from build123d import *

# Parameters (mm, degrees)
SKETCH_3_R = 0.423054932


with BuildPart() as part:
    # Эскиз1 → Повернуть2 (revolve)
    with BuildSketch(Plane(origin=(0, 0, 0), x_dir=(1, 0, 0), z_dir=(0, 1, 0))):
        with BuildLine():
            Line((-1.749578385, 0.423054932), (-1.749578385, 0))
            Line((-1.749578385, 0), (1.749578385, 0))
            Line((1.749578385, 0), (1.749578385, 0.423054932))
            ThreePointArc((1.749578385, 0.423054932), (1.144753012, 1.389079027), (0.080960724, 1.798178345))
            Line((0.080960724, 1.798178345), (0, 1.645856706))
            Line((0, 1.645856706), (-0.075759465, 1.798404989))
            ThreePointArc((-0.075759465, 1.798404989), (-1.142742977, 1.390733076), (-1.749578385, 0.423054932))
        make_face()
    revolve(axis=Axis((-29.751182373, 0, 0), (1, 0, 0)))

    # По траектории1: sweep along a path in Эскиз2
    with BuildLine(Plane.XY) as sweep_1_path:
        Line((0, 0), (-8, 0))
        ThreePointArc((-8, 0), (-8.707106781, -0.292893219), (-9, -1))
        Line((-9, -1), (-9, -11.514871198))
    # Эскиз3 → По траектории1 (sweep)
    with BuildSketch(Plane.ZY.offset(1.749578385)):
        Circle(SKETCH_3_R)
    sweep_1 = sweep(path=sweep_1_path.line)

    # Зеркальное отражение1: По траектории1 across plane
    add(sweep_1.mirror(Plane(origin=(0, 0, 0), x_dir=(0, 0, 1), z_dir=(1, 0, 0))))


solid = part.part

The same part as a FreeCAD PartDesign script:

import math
import FreeCAD as App
import Part
import Sketcher
Q = App.Units.Quantity

doc = App.newDocument("Part")
params = doc.addObject("Spreadsheet::Sheet", "Params")
for row, (alias, value) in enumerate([
    ("sketch1_radius", "1.8 mm"),
    ("revolution_angle", "360 deg"),
    ("sketch3_radius", "1 mm"),
    ("sketch3_width", "8 mm"),
], start=1):
    params.set(f"A{row}", alias)
    params.set(f"B{row}", "=" + value)
    params.setAlias(f"B{row}", alias)

body = doc.addObject("PartDesign::Body", "Body")

# Sketch on XZ plane
sketch1 = body.newObject("Sketcher::SketchObject", "Sketch")
sketch1.AttachmentSupport = (doc.getObject("XZ_Plane"), [""])
sketch1.MapMode = "FlatFace"
sketch1.addGeometry(Part.LineSegment(App.Vector(-1.749578, -0.423055, 0), App.Vector(-1.749578, 0, 0)), False)
sketch1.addGeometry(Part.LineSegment(App.Vector(-1.749578, 0, 0), App.Vector(1.749578, 0, 0)), False)
sketch1.addGeometry(Part.LineSegment(App.Vector(1.749578, 0, 0), App.Vector(1.749578, -0.423055, 0)), False)
sketch1.addGeometry(Part.ArcOfCircle(Part.Circle(App.Vector(0, 0, 0), App.Vector(0, 0, 1), 1.8), math.radians(-87.42207), math.radians(-13.593422)), False)
sketch1.addGeometry(Part.LineSegment(App.Vector(0.080961, -1.798178, 0), App.Vector(0, -1.645857, 0)), False)
sketch1.addGeometry(Part.LineSegment(App.Vector(0, -1.645857, 0), App.Vector(-0.075759, -1.798405, 0)), False)
sketch1.addGeometry(Part.ArcOfCircle(Part.Circle(App.Vector(0, 0, 0), App.Vector(0, 0, 1), 1.8), math.radians(-166.406578), math.radians(-92.412211)), False)
sketch1.addConstraint(Sketcher.Constraint("Coincident", 0, 2, 1, 1))
sketch1.addConstraint(Sketcher.Constraint("Coincident", 1, 2, 2, 1))
sketch1.addConstraint(Sketcher.Constraint("Coincident", 2, 2, 3, 2))
sketch1.addConstraint(Sketcher.Constraint("Coincident", 3, 1, 4, 1))
sketch1.addConstraint(Sketcher.Constraint("Coincident", 4, 2, 5, 1))
sketch1.addConstraint(Sketcher.Constraint("Coincident", 5, 2, 6, 2))
sketch1.addConstraint(Sketcher.Constraint("Coincident", 6, 1, 0, 1))
sketch1.addConstraint(Sketcher.Constraint("Vertical", 0))
sketch1.addConstraint(Sketcher.Constraint("Horizontal", 1))
sketch1.addConstraint(Sketcher.Constraint("Vertical", 2))
sketch1.addConstraint(Sketcher.Constraint("Coincident", 3, 3, -1, 1))
sketch1.addConstraint(Sketcher.Constraint("Coincident", 6, 3, -1, 1))
sketch1.addConstraint(Sketcher.Constraint("Equal", 3, 6))
sketch1.addConstraint(Sketcher.Constraint("Symmetric", 0, 2, 1, 2, -1, 1))
sketch1.addConstraint(Sketcher.Constraint("PointOnObject", 4, 2, -2))
sketch1.addConstraint(Sketcher.Constraint("Radius", 3, Q("1.8 mm")))
sketch1.addConstraint(Sketcher.Constraint("Distance", 4, Q("0.172501 mm")))
sketch1.addConstraint(Sketcher.Constraint("DistanceY", 4, 2, 2, 2, Q("1.222802 mm")))
sketch1.addConstraint(Sketcher.Constraint("DistanceX", 1, 1, 1, 2, Q("3.499157 mm")))
sketch1.addConstraint(Sketcher.Constraint("DistanceX", 5, 2, -1, 1, Q("0.075759 mm")))
sketch1.setExpression("Constraints[15]", "Params.sketch1_radius")
revolution = body.newObject("PartDesign::Revolution", "Revolution")
revolution.Profile = sketch1
revolution.ReferenceAxis = (sketch1, ["H_Axis"])
revolution.setExpression("Angle", "Params.revolution_angle")

# Sketch on YZ plane
sketch2 = body.newObject("Sketcher::SketchObject", "Sketch001")
sketch2.AttachmentSupport = (doc.getObject("YZ_Plane"), [""])
sketch2.MapMode = "FlatFace"
sketch2.AttachmentOffset = App.Placement(App.Vector(0, 0, -1.749578), App.Rotation())
sketch2.addGeometry(Part.Circle(App.Vector(0, 0, 0), App.Vector(0, 0, 1), 0.423055), False)
sketch2.addConstraint(Sketcher.Constraint("Coincident", 0, 3, -1, 1))
sketch2.addConstraint(Sketcher.Constraint("Diameter", 0, Q("0.84611 mm")))

# Sketch on XY plane
sketch3 = body.newObject("Sketcher::SketchObject", "Sketch002")
sketch3.AttachmentSupport = (doc.getObject("XY_Plane"), [""])
sketch3.MapMode = "FlatFace"
sketch3.addGeometry(Part.LineSegment(App.Vector(0, 0, 0), App.Vector(-8, 0, 0)), False)
sketch3.addGeometry(Part.ArcOfCircle(Part.Circle(App.Vector(-8, -1, 0), App.Vector(0, 0, 1), 1), math.radians(90), math.radians(180)), False)
sketch3.addGeometry(Part.LineSegment(App.Vector(-9, -1, 0), App.Vector(-9, -11.514871, 0)), False)
sketch3.addConstraint(Sketcher.Constraint("Tangent", 0, 2, 1, 1))
sketch3.addConstraint(Sketcher.Constraint("Tangent", 1, 2, 2, 1))
sketch3.addConstraint(Sketcher.Constraint("Horizontal", 0))
sketch3.addConstraint(Sketcher.Constraint("Vertical", 2))
sketch3.addConstraint(Sketcher.Constraint("Coincident", 0, 1, -1, 1))
sketch3.addConstraint(Sketcher.Constraint("Radius", 1, Q("1 mm")))
sketch3.addConstraint(Sketcher.Constraint("DistanceX", 0, 2, 0, 1, Q("8 mm")))
sketch3.addConstraint(Sketcher.Constraint("DistanceY", 2, 2, 2, 1, Q("10.514871 mm")))
sketch3.setExpression("Constraints[5]", "Params.sketch3_radius")
sketch3.setExpression("Constraints[6]", "Params.sketch3_width")
doc.recompute()

additivepipe = body.newObject("PartDesign::AdditivePipe", "AdditivePipe")
additivepipe.Profile = sketch2
additivepipe.Spine = (sketch3, ["Edge1", "Edge2", "Edge3"])
doc.recompute()

mirrored = body.newObject("PartDesign::Mirrored", "Mirrored")
mirrored.Originals = [additivepipe]
mirrored.MirrorPlane = (doc.getObject("YZ_Plane"), [""])
body.Tip = mirrored

doc.recompute()
